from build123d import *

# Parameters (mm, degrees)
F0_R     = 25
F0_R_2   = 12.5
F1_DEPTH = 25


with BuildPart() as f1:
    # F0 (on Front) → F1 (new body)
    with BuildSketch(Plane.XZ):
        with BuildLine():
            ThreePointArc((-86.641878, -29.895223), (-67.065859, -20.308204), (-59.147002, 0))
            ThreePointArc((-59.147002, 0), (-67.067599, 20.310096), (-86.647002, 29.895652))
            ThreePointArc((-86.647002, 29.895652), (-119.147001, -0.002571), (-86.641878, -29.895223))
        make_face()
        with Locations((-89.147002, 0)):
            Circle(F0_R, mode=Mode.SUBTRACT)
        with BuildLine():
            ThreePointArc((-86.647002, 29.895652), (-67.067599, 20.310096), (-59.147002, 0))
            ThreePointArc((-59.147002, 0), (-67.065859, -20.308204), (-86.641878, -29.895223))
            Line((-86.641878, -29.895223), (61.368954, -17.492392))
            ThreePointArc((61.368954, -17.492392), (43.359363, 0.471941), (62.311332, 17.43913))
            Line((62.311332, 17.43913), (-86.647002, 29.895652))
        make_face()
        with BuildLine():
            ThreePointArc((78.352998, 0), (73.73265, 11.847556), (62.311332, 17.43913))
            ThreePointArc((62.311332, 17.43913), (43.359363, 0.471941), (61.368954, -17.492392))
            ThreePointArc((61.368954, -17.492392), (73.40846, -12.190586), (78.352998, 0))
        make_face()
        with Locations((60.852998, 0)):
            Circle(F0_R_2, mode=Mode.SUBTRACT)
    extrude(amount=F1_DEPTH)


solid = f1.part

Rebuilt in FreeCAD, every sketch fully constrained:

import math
import FreeCAD as App
import Part
import Sketcher
from FreeCAD import Vector
Q = App.Units.Quantity

doc = App.newDocument("Part")
body = doc.addObject("PartDesign::Body", "Body")

# Sketch on XZ plane
sketch1 = doc.addObject("Sketcher::SketchObject", "Sketch")
body.addObject(sketch1)
sketch1.AttachmentSupport = (doc.XZ_Plane, [""])
sketch1.MapMode = "FlatFace"
sketch1.addGeometry([
    Part.ArcOfCircle(Part.Circle(Vector(-89.147001, 0, 0), Vector(0, 0, 1), 30), math.radians(85.21981), math.radians(274.79001)),  # 0
    Part.LineSegment(Vector(-86.641878, -29.895223, 0), Vector(61.368954, -17.492392, 0)),  # 1
    Part.ArcOfCircle(Part.Circle(Vector(60.853, -0.000001, 0), Vector(0, 0, 1), 17.499998), math.radians(-88.310497), math.radians(0.000004)),  # 2
    Part.ArcOfCircle(Part.Circle(Vector(60.853, 0.000002, 0), Vector(0, 0, 1), 17.499998), math.radians(-0.000005), math.radians(85.219812)),  # 3
    Part.LineSegment(Vector(62.311332, 17.43913, 0), Vector(-86.647002, 29.895652, 0)),  # 4
    Part.Circle(Vector(-89.147002, 0, 0), Vector(0, 0, 1), 25),  # 5
    Part.Circle(Vector(60.852998, 0, 0), Vector(0, 0, 1), 12.5),  # 6
], False)
sketch1.addConstraint([
    Sketcher.Constraint("Coincident", 0, 2, 1, 1),
    Sketcher.Constraint("Coincident", 1, 2, 2, 1),
    Sketcher.Constraint("Coincident", 2, 2, 3, 1),
    Sketcher.Constraint("Coincident", 3, 2, 4, 1),
    Sketcher.Constraint("Coincident", 4, 2, 0, 1),
    Sketcher.Constraint("Coincident", 3, 3, 2, 3),
    Sketcher.Constraint("Coincident", 5, 3, 0, 3),
    Sketcher.Constraint("Coincident", 6, 3, 2, 3),
    Sketcher.Constraint("PointOnObject", 0, 3, -1),
    Sketcher.Constraint("PointOnObject", 2, 3, -1),
    Sketcher.Constraint("PointOnObject", 2, 2, -1),
    Sketcher.Constraint("Diameter", 5, Q("50 mm")),
    Sketcher.Constraint("Diameter", 6, Q("25 mm")),
    Sketcher.Constraint("Radius", 0, Q("30 mm")),
    Sketcher.Constraint("Radius", 2, Q("17.499998 mm")),
    Sketcher.Constraint("DistanceX", 0, 3, 2, 3, Q("150.000001 mm")),
    Sketcher.Constraint("DistanceX", 0, 3, 4, 2, Q("2.499999 mm")),
    Sketcher.Constraint("DistanceX", 0, 3, -1, 1, Q("89.147001 mm")),
    Sketcher.Constraint("Distance", 1, Q("148.529582 mm")),
    Sketcher.Constraint("Distance", 4, Q("149.47826 mm")),
    Sketcher.Constraint("DistanceX", 0, 2, -1, 1, Q("86.641878 mm")),
])
pad1 = doc.addObject("PartDesign::Pad", "Pad")
body.addObject(pad1)
pad1.Profile = sketch1
pad1.Length = 25

doc.recompute()
